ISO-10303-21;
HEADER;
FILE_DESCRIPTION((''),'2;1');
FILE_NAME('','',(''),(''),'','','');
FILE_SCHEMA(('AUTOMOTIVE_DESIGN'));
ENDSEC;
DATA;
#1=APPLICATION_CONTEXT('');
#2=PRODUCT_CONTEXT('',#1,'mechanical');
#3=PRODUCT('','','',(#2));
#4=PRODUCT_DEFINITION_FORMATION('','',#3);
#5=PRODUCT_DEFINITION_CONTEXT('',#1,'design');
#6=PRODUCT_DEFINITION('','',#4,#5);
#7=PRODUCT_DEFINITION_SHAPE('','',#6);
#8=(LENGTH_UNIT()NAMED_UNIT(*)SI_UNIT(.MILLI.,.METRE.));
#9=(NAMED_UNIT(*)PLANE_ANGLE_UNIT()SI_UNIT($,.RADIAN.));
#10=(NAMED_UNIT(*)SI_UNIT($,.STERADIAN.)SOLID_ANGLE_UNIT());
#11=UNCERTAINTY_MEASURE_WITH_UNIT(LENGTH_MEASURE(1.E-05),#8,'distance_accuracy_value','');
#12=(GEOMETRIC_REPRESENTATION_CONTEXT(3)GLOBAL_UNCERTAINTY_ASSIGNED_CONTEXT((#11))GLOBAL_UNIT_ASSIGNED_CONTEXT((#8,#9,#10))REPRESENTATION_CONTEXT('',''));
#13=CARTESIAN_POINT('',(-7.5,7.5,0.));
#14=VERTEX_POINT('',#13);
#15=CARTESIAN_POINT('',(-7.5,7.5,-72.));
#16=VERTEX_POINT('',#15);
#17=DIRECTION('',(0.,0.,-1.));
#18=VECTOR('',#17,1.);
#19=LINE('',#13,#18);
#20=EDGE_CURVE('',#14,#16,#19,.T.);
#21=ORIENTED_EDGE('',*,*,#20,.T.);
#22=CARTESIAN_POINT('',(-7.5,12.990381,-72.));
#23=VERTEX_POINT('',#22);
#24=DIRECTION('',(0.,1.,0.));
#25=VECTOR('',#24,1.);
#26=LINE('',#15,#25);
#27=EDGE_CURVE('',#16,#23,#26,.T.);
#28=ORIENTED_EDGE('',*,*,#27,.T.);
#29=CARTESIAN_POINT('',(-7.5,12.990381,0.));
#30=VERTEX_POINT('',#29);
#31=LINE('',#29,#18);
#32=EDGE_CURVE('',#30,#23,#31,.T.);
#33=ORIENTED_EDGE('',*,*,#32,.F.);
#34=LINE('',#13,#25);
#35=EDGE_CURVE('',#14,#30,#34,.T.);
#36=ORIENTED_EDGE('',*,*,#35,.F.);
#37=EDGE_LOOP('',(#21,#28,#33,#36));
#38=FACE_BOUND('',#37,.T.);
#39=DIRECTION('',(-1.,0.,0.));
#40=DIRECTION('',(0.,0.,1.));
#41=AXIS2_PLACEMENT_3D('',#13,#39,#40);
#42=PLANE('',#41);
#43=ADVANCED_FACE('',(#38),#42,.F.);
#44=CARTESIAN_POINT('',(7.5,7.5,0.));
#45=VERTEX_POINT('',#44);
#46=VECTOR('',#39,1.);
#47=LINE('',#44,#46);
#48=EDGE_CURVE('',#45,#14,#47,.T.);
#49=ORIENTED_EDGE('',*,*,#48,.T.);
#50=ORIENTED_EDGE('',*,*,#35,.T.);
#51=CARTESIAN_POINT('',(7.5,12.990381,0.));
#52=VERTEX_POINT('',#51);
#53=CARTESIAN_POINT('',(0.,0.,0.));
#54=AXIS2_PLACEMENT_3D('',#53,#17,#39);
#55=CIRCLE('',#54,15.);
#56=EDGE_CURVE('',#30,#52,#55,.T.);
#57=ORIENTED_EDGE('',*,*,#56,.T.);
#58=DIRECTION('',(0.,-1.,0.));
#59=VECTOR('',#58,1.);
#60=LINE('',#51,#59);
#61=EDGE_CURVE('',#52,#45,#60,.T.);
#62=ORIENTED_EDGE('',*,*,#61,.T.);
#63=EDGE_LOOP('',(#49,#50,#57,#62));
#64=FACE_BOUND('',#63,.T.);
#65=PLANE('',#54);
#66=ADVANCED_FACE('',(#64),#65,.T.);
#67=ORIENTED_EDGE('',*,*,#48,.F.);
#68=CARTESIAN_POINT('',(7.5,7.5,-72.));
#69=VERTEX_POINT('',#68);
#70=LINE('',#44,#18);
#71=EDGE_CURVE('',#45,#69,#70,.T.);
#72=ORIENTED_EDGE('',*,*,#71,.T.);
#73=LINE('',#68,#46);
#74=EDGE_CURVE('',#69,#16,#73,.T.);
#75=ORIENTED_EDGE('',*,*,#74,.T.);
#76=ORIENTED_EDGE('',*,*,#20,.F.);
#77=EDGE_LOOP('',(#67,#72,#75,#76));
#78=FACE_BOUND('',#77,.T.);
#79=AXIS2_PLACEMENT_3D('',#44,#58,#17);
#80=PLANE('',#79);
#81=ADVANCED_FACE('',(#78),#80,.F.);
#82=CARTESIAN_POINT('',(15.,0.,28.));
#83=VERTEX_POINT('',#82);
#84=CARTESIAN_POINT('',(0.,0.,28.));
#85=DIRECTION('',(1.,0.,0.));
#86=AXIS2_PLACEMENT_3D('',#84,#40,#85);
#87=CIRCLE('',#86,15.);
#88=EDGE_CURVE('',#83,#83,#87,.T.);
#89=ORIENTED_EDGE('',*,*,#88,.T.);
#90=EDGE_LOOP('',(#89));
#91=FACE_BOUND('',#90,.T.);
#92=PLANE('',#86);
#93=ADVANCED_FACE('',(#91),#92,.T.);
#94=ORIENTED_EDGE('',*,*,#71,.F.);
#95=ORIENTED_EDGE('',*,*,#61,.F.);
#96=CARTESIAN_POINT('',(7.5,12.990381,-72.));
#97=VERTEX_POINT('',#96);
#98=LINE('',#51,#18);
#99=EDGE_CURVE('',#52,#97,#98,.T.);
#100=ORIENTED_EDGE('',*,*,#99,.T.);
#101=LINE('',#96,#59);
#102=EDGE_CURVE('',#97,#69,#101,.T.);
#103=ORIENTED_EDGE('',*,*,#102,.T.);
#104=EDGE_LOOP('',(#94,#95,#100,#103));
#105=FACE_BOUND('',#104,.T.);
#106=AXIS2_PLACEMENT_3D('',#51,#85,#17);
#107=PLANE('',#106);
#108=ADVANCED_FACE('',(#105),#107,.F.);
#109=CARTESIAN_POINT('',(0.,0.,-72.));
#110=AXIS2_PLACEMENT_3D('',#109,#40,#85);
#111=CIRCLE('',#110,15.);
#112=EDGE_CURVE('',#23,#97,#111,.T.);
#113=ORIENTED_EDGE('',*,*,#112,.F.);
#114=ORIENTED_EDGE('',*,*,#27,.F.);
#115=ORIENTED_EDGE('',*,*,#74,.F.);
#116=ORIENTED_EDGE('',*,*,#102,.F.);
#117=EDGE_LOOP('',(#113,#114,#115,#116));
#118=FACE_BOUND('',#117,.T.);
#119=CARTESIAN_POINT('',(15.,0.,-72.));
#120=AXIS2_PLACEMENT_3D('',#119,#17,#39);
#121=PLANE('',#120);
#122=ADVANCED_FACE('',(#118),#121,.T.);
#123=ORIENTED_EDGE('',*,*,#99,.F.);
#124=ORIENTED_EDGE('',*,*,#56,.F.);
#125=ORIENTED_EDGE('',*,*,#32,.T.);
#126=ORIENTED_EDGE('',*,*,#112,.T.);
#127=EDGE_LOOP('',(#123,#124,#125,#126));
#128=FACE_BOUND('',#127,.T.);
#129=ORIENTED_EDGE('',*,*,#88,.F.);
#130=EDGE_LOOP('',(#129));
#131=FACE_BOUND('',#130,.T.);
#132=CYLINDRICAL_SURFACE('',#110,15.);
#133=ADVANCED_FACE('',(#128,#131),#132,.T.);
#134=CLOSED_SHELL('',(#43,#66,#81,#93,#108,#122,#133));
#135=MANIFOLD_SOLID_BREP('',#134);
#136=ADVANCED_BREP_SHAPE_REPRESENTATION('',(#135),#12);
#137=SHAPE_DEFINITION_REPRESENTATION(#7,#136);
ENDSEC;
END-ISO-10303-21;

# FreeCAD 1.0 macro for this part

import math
import FreeCAD as App
import Part
import Sketcher


def add_polygon(sketch, points):
    """Adds a closed chain of lines whose ends are joined by coincident constraints."""
    first, n = sketch.GeometryCount, len(points)
    for a, b in zip(points, points[1:] + points[:1]):
        sketch.addGeometry(Part.LineSegment(App.Vector(*a, 0), App.Vector(*b, 0)), False)
    for i in range(n):
        sketch.addConstraint(Sketcher.Constraint("Coincident", first + i, 2, first + (i + 1) % n, 1))

doc = App.newDocument("Part")
body = doc.addObject("PartDesign::Body", "Body")

sketch1 = doc.addObject("Sketcher::SketchObject", "Sketch")
body.addObject(sketch1)
sketch1.AttachmentSupport = (doc.XZ_Plane, [""])
sketch1.MapMode = "FlatFace"
add_polygon(sketch1, [(0, -72), (0, 28), (15, 28), (15, -72)])
sketch1.addConstraint([
    Sketcher.Constraint("Vertical", 0),
    Sketcher.Constraint("Horizontal", 1),
    Sketcher.Constraint("Vertical", 2),
    Sketcher.Constraint("Horizontal", 3),
    Sketcher.Constraint("PointOnObject", 0, 2, -2),
    Sketcher.Constraint("DistanceX", 1, 1, 1, 2, 15.0),
    Sketcher.Constraint("DistanceY", 0, 1, 0, 2, 100.0),
    Sketcher.Constraint("DistanceY", -1, 1, 0, 2, 28.0),
])
revolution = doc.addObject("PartDesign::Revolution", "Revolution")
body.addObject(revolution)
revolution.Profile = sketch1
revolution.ReferenceAxis = (sketch1, ["V_Axis"])
revolution.Angle = 360

sketch2 = doc.addObject("Sketcher::SketchObject", "Sketch001")
body.addObject(sketch2)
sketch2.AttachmentSupport = (doc.XY_Plane, [""])
sketch2.MapMode = "FlatFace"
sketch2.AttachmentOffset = App.Placement(App.Vector(0, 0, -72), App.Rotation())
sketch2.addGeometry([
    Part.LineSegment(App.Vector(8, 13, 0), App.Vector(8, 8, 0)),
    Part.LineSegment(App.Vector(8, 8, 0), App.Vector(-8, 8, 0)),
    Part.LineSegment(App.Vector(-8, 8, 0), App.Vector(-8, 13, 0)),
    Part.ArcOfCircle(Part.Circle(App.Vector(0, 0, 0), App.Vector(0, 0, 1), 15), math.radians(60), math.radians(120)),
], False)
sketch2.addConstraint([
    Sketcher.Constraint("Coincident", 0, 2, 1, 1),
    Sketcher.Constraint("Coincident", 1, 2, 2, 1),
    Sketcher.Constraint("Coincident", 2, 2, 3, 2),
    Sketcher.Constraint("Coincident", 3, 1, 0, 1),
    Sketcher.Constraint("Vertical", 0),
    Sketcher.Constraint("Horizontal", 1),
    Sketcher.Constraint("Vertical", 2),
    Sketcher.Constraint("Coincident", 3, 3, -1, 1),
    Sketcher.Constraint("Horizontal", 2, 2, 3, 1),
    Sketcher.Constraint("Radius", 3, 15.0),
    Sketcher.Constraint("DistanceX", 1, 2, 1, 1, 15.0),
    Sketcher.Constraint("DistanceY", -1, 1, 0, 2, 7.5),
])
pocket1 = doc.addObject("PartDesign::Pocket", "Pocket")
body.addObject(pocket1)
pocket1.Profile = sketch2
pocket1.Length = 72
pocket1.Reversed = True

doc.recompute()
